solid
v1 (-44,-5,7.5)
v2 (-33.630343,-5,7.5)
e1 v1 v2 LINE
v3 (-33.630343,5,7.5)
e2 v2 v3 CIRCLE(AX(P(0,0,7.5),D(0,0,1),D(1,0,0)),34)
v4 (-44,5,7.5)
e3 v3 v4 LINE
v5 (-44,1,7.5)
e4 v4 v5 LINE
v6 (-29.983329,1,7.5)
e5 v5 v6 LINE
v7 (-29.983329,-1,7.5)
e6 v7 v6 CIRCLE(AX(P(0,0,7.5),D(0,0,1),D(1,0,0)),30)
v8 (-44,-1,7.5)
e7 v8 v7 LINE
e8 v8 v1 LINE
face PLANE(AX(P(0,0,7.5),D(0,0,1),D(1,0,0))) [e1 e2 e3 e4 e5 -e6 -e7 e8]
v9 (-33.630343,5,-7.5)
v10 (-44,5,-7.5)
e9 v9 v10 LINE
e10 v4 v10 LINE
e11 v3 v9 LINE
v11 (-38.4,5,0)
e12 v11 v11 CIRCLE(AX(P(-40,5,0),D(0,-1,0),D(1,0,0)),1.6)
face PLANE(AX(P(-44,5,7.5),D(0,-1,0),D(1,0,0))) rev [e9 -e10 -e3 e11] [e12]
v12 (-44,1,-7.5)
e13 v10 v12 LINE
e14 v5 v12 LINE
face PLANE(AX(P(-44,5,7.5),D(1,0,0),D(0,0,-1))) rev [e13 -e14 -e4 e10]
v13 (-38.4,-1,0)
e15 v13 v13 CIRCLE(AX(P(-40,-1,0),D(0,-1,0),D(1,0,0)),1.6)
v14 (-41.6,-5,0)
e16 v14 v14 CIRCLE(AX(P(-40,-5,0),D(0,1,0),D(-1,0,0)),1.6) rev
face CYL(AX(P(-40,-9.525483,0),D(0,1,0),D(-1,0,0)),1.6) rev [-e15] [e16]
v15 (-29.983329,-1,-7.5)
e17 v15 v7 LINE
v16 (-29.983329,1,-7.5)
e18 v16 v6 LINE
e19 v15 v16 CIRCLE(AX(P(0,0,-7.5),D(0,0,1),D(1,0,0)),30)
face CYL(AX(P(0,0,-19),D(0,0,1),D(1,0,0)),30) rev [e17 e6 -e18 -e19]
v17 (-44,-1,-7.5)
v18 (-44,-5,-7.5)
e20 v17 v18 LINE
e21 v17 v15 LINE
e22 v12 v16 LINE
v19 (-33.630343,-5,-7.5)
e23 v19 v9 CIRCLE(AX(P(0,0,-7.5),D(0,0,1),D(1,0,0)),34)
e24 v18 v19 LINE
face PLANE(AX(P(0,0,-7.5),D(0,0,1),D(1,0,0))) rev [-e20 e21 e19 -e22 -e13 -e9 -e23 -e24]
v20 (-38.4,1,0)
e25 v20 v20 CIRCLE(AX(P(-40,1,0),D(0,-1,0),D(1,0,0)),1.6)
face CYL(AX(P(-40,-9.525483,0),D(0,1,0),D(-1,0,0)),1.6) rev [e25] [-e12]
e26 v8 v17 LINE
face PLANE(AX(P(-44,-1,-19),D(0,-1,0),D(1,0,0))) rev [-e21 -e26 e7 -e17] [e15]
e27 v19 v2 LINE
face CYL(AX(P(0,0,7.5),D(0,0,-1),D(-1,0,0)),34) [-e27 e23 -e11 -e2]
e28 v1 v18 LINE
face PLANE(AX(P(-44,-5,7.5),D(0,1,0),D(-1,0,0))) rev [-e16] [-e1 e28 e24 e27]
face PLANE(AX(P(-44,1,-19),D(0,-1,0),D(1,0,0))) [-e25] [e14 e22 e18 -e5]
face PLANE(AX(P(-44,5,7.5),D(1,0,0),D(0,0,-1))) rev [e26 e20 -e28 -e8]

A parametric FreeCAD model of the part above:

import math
import FreeCAD as App
import Part
import Sketcher

V = App.Vector

doc = App.newDocument("Part")
body = doc.addObject("PartDesign::Body", "Body")

sketch1 = body.newObject("Sketcher::SketchObject", "Sketch")
sketch1.AttachmentSupport = (doc.getObject("XY_Plane"), [""])
sketch1.MapMode = "FlatFace"
sketch1.addGeometry(Part.Circle(V(0, 0, 0), V(0, 0, 1), 34), False)
sketch1.addConstraint(Sketcher.Constraint("Coincident", 0, 3, -1, 1))
sketch1.addConstraint(Sketcher.Constraint("Diameter", 0, 68.0))
pad1 = body.newObject("PartDesign::Pad", "Pad")
pad1.Profile = sketch1
pad1.Length = 15
pad1.Midplane = True

sketch2 = body.newObject("Sketcher::SketchObject", "Sketch001")
sketch2.AttachmentSupport = (doc.getObject("XY_Plane"), [""])
sketch2.MapMode = "FlatFace"
sketch2.addGeometry(Part.LineSegment(V(-44, 5, 0), V(-44, -5, 0)), False)
sketch2.addGeometry(Part.LineSegment(V(-44, -5, 0), V(0, -5, 0)), False)
sketch2.addGeometry(Part.LineSegment(V(0, -5, 0), V(0, 5, 0)), False)
sketch2.addGeometry(Part.LineSegment(V(0, 5, 0), V(-44, 5, 0)), False)
sketch2.addConstraint(Sketcher.Constraint("Coincident", 0, 2, 1, 1))
sketch2.addConstraint(Sketcher.Constraint("Coincident", 1, 2, 2, 1))
sketch2.addConstraint(Sketcher.Constraint("Coincident", 2, 2, 3, 1))
sketch2.addConstraint(Sketcher.Constraint("Coincident", 3, 2, 0, 1))
sketch2.addConstraint(Sketcher.Constraint("Vertical", 0))
sketch2.addConstraint(Sketcher.Constraint("Horizontal", 1))
sketch2.addConstraint(Sketcher.Constraint("Vertical", 2))
sketch2.addConstraint(Sketcher.Constraint("Horizontal", 3))
sketch2.addConstraint(Sketcher.Constraint("Symmetric", 1, 2, 2, 2, -1, 1))
sketch2.addConstraint(Sketcher.Constraint("DistanceX", 1, 1, 1, 2, 44.0))
sketch2.addConstraint(Sketcher.Constraint("DistanceY", 0, 2, 0, 1, 10.0))
pad2 = body.newObject("PartDesign::Pad", "Pad001")
pad2.Profile = sketch2
pad2.Length = 15
pad2.Midplane = True

sketch3 = body.newObject("Sketcher::SketchObject", "Sketch002")
sketch3.AttachmentSupport = (doc.getObject("XY_Plane"), [""])
sketch3.MapMode = "FlatFace"
sketch3.AttachmentOffset = App.Placement(V(0, 0, 7.5), App.Rotation())
sketch3.addGeometry(Part.ArcOfCircle(Part.Circle(V(0, 0, 0), V(0, 0, 1), 30), math.radians(-178.089787), math.radians(178.089787)), False)
sketch3.addGeometry(Part.LineSegment(V(-29.983329, 1, 0), V(-44, 1, 0)), False)
sketch3.addGeometry(Part.LineSegment(V(-44, 1, 0), V(-44, -1, 0)), False)
sketch3.addGeometry(Part.LineSegment(V(-44, -1, 0), V(-29.983329, -1, 0)), False)
sketch3.addConstraint(Sketcher.Constraint("Coincident", 0, 2, 1, 1))
sketch3.addConstraint(Sketcher.Constraint("Coincident", 1, 2, 2, 1))
sketch3.addConstraint(Sketcher.Constraint("Coincident", 2, 2, 3, 1))
sketch3.addConstraint(Sketcher.Constraint("Coincident", 3, 2, 0, 1))
sketch3.addConstraint(Sketcher.Constraint("Horizontal", 1))
sketch3.addConstraint(Sketcher.Constraint("Vertical", 2))
sketch3.addConstraint(Sketcher.Constraint("Horizontal", 3))
sketch3.addConstraint(Sketcher.Constraint("Coincident", 0, 3, -1, 1))
sketch3.addConstraint(Sketcher.Constraint("Vertical", 0, 2, 3, 2))
sketch3.addConstraint(Sketcher.Constraint("Radius", 0, 30.0))
sketch3.addConstraint(Sketcher.Constraint("DistanceY", 2, 2, 2, 1, 2.0))
sketch3.addConstraint(Sketcher.Constraint("DistanceX", 1, 2, -1, 1, 44.0))
pocket1 = body.newObject("PartDesign::Pocket", "Pocket")
pocket1.Profile = sketch3
pocket1.Length = 26.5

sketch4 = body.newObject("Sketcher::SketchObject", "Sketch003")
sketch4.AttachmentSupport = (doc.getObject("XZ_Plane"), [""])
sketch4.MapMode = "FlatFace"
sketch4.AttachmentOffset = App.Placement(V(0, 0, -5), App.Rotation())
sketch4.addGeometry(Part.Circle(V(-40, 0, 0), V(0, 0, 1), 1.6), False)
sketch4.addConstraint(Sketcher.Constraint("PointOnObject", 0, 3, -1))
sketch4.addConstraint(Sketcher.Constraint("Diameter", 0, 3.2))
sketch4.addConstraint(Sketcher.Constraint("DistanceX", 0, 3, -1, 1, 40.0))
pocket2 = body.newObject("PartDesign::Pocket", "Pocket001")
pocket2.Profile = sketch4
pocket2.Type = "ThroughAll"
pocket2.Midplane = True

doc.recompute()
